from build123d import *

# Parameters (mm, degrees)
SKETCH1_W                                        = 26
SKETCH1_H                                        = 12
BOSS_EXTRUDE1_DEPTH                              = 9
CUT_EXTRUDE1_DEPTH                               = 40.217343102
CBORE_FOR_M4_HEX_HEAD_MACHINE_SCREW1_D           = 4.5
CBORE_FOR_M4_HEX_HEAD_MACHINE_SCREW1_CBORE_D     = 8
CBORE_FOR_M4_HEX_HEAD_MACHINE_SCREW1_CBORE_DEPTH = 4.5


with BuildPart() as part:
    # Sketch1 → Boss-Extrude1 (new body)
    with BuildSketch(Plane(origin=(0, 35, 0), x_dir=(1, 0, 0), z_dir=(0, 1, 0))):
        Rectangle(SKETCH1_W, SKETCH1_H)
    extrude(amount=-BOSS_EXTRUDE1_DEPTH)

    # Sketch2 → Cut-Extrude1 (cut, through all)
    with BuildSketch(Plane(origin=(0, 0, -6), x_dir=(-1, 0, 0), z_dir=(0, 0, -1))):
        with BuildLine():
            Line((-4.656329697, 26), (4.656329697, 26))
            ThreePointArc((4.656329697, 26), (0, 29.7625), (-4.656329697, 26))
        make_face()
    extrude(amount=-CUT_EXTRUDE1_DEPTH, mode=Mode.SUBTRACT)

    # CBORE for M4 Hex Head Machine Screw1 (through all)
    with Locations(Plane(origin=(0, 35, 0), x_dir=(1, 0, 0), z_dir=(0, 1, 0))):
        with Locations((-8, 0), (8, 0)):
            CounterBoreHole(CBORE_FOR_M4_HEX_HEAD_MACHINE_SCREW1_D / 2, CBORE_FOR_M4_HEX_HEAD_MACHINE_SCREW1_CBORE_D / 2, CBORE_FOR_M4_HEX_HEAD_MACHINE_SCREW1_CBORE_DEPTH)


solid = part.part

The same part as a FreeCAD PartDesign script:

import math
import FreeCAD as App
import Part
import Sketcher
from FreeCAD import Vector

doc = App.newDocument("Part")
params = doc.addObject("Spreadsheet::Sheet", "Params")
for row, (alias, value) in enumerate([
    ("sketch1_width", "26 mm"),
    ("sketch1_height", "12 mm"),
    ("pad1_length", "9 mm"),
    ("sketch3_diameter", "4.5 mm"),
    ("hole_diameter", "4.5 mm"),
    ("hole_cbore_diameter", "8 mm"),
    ("hole_cbore_depth", "4.5 mm"),
], start=1):
    params.set(f"A{row}", alias)
    params.set(f"B{row}", "=" + value)
    params.setAlias(f"B{row}", alias)

body = doc.addObject("PartDesign::Body", "Body")

sketch1 = doc.addObject("Sketcher::SketchObject", "Sketch")
body.addObject(sketch1)
sketch1.AttachmentSupport = (doc.XZ_Plane, [""])
sketch1.MapMode = "FlatFace"
sketch1.AttachmentOffset = App.Placement(Vector(0, 0, -35), App.Rotation())
sketch1.addGeometry(Part.LineSegment(Vector(-13, -6, 0), Vector(-13, 6, 0)), False)
sketch1.addGeometry(Part.LineSegment(Vector(-13, 6, 0), Vector(13, 6, 0)), False)
sketch1.addGeometry(Part.LineSegment(Vector(13, 6, 0), Vector(13, -6, 0)), False)
sketch1.addGeometry(Part.LineSegment(Vector(13, -6, 0), Vector(-13, -6, 0)), False)
sketch1.addConstraint(Sketcher.Constraint("Coincident", 0, 2, 1, 1))
sketch1.addConstraint(Sketcher.Constraint("Coincident", 1, 2, 2, 1))
sketch1.addConstraint(Sketcher.Constraint("Coincident", 2, 2, 3, 1))
sketch1.addConstraint(Sketcher.Constraint("Coincident", 3, 2, 0, 1))
sketch1.addConstraint(Sketcher.Constraint("Vertical", 0))
sketch1.addConstraint(Sketcher.Constraint("Horizontal", 1))
sketch1.addConstraint(Sketcher.Constraint("Vertical", 2))
sketch1.addConstraint(Sketcher.Constraint("Horizontal", 3))
sketch1.addConstraint(Sketcher.Constraint("Symmetric", 0, 2, 2, 2, -1, 1))
sketch1.addConstraint(Sketcher.Constraint("DistanceX", 1, 1, 1, 2, 26.0))
sketch1.addConstraint(Sketcher.Constraint("DistanceY", 0, 1, 0, 2, 12.0))
sketch1.setExpression("Constraints[9]", "Params.sketch1_width")
sketch1.setExpression("Constraints[10]", "Params.sketch1_height")
pad1 = doc.addObject("PartDesign::Pad", "Pad")
body.addObject(pad1)
pad1.Profile = sketch1
pad1.setExpression("Length", "Params.pad1_length")

sketch2 = doc.addObject("Sketcher::SketchObject", "Sketch001")
body.addObject(sketch2)
sketch2.AttachmentSupport = (doc.XY_Plane, [""])
sketch2.MapMode = "FlatFace"
sketch2.AttachmentOffset = App.Placement(Vector(0, 0, -6), App.Rotation())
sketch2.addGeometry(Part.LineSegment(Vector(4.7, 26, 0), Vector(-4.7, 26, 0)), False)
sketch2.addGeometry(Part.ArcOfCircle(Part.Circle(Vector(0, 25, 0), Vector(0, 0, 1), 4.8), math.radians(12), math.radians(168)), False)
sketch2.addConstraint(Sketcher.Constraint("Coincident", 0, 1, 1, 1))
sketch2.addConstraint(Sketcher.Constraint("Coincident", 1, 2, 0, 2))
sketch2.addConstraint(Sketcher.Constraint("Horizontal", 0))
sketch2.addConstraint(Sketcher.Constraint("PointOnObject", 1, 3, -2))
sketch2.addConstraint(Sketcher.Constraint("DistanceY", -1, 1, 1, 3, 25.0))
sketch2.addConstraint(Sketcher.Constraint("DistanceY", -1, 1, 0, 1, 26.0))
sketch2.addConstraint(Sketcher.Constraint("Radius", 1, 4.7625))
pocket1 = doc.addObject("PartDesign::Pocket", "Pocket")
body.addObject(pocket1)
pocket1.Profile = sketch2
pocket1.Type = "ThroughAll"
pocket1.Reversed = True

sketch3 = doc.addObject("Sketcher::SketchObject", "Sketch002")
body.addObject(sketch3)
sketch3.AttachmentSupport = (doc.XZ_Plane, [""])
sketch3.MapMode = "FlatFace"
sketch3.AttachmentOffset = App.Placement(Vector(0, 0, -35), App.Rotation())
sketch3.addGeometry(Part.Circle(Vector(-8, 0, 0), Vector(0, 0, 1), 2.2), False)
sketch3.addGeometry(Part.Circle(Vector(8, 0, 0), Vector(0, 0, 1), 2.2), False)
sketch3.addConstraint(Sketcher.Constraint("Equal", 0, 1))
sketch3.addConstraint(Sketcher.Constraint("Symmetric", 0, 3, 1, 3, -1, 1))
sketch3.addConstraint(Sketcher.Constraint("PointOnObject", 0, 3, -1))
sketch3.addConstraint(Sketcher.Constraint("Diameter", 0, 4.5))
sketch3.addConstraint(Sketcher.Constraint("DistanceX", 0, 3, -1, 1, 8.0))
sketch3.setExpression("Constraints[3]", "Params.sketch3_diameter")
doc.recompute()
hole = doc.addObject("PartDesign::Hole", "Hole")
body.addObject(hole)
hole.Profile = sketch3
hole.ThreadType = "None"
hole.setExpression("Diameter", "Params.hole_diameter")
hole.DepthType = "ThroughAll"
hole.HoleCutType = "Counterbore"
hole.setExpression("HoleCutDiameter", "Params.hole_cbore_diameter")
hole.setExpression("HoleCutDepth", "Params.hole_cbore_depth")
hole.Reversed = True

doc.recompute()
